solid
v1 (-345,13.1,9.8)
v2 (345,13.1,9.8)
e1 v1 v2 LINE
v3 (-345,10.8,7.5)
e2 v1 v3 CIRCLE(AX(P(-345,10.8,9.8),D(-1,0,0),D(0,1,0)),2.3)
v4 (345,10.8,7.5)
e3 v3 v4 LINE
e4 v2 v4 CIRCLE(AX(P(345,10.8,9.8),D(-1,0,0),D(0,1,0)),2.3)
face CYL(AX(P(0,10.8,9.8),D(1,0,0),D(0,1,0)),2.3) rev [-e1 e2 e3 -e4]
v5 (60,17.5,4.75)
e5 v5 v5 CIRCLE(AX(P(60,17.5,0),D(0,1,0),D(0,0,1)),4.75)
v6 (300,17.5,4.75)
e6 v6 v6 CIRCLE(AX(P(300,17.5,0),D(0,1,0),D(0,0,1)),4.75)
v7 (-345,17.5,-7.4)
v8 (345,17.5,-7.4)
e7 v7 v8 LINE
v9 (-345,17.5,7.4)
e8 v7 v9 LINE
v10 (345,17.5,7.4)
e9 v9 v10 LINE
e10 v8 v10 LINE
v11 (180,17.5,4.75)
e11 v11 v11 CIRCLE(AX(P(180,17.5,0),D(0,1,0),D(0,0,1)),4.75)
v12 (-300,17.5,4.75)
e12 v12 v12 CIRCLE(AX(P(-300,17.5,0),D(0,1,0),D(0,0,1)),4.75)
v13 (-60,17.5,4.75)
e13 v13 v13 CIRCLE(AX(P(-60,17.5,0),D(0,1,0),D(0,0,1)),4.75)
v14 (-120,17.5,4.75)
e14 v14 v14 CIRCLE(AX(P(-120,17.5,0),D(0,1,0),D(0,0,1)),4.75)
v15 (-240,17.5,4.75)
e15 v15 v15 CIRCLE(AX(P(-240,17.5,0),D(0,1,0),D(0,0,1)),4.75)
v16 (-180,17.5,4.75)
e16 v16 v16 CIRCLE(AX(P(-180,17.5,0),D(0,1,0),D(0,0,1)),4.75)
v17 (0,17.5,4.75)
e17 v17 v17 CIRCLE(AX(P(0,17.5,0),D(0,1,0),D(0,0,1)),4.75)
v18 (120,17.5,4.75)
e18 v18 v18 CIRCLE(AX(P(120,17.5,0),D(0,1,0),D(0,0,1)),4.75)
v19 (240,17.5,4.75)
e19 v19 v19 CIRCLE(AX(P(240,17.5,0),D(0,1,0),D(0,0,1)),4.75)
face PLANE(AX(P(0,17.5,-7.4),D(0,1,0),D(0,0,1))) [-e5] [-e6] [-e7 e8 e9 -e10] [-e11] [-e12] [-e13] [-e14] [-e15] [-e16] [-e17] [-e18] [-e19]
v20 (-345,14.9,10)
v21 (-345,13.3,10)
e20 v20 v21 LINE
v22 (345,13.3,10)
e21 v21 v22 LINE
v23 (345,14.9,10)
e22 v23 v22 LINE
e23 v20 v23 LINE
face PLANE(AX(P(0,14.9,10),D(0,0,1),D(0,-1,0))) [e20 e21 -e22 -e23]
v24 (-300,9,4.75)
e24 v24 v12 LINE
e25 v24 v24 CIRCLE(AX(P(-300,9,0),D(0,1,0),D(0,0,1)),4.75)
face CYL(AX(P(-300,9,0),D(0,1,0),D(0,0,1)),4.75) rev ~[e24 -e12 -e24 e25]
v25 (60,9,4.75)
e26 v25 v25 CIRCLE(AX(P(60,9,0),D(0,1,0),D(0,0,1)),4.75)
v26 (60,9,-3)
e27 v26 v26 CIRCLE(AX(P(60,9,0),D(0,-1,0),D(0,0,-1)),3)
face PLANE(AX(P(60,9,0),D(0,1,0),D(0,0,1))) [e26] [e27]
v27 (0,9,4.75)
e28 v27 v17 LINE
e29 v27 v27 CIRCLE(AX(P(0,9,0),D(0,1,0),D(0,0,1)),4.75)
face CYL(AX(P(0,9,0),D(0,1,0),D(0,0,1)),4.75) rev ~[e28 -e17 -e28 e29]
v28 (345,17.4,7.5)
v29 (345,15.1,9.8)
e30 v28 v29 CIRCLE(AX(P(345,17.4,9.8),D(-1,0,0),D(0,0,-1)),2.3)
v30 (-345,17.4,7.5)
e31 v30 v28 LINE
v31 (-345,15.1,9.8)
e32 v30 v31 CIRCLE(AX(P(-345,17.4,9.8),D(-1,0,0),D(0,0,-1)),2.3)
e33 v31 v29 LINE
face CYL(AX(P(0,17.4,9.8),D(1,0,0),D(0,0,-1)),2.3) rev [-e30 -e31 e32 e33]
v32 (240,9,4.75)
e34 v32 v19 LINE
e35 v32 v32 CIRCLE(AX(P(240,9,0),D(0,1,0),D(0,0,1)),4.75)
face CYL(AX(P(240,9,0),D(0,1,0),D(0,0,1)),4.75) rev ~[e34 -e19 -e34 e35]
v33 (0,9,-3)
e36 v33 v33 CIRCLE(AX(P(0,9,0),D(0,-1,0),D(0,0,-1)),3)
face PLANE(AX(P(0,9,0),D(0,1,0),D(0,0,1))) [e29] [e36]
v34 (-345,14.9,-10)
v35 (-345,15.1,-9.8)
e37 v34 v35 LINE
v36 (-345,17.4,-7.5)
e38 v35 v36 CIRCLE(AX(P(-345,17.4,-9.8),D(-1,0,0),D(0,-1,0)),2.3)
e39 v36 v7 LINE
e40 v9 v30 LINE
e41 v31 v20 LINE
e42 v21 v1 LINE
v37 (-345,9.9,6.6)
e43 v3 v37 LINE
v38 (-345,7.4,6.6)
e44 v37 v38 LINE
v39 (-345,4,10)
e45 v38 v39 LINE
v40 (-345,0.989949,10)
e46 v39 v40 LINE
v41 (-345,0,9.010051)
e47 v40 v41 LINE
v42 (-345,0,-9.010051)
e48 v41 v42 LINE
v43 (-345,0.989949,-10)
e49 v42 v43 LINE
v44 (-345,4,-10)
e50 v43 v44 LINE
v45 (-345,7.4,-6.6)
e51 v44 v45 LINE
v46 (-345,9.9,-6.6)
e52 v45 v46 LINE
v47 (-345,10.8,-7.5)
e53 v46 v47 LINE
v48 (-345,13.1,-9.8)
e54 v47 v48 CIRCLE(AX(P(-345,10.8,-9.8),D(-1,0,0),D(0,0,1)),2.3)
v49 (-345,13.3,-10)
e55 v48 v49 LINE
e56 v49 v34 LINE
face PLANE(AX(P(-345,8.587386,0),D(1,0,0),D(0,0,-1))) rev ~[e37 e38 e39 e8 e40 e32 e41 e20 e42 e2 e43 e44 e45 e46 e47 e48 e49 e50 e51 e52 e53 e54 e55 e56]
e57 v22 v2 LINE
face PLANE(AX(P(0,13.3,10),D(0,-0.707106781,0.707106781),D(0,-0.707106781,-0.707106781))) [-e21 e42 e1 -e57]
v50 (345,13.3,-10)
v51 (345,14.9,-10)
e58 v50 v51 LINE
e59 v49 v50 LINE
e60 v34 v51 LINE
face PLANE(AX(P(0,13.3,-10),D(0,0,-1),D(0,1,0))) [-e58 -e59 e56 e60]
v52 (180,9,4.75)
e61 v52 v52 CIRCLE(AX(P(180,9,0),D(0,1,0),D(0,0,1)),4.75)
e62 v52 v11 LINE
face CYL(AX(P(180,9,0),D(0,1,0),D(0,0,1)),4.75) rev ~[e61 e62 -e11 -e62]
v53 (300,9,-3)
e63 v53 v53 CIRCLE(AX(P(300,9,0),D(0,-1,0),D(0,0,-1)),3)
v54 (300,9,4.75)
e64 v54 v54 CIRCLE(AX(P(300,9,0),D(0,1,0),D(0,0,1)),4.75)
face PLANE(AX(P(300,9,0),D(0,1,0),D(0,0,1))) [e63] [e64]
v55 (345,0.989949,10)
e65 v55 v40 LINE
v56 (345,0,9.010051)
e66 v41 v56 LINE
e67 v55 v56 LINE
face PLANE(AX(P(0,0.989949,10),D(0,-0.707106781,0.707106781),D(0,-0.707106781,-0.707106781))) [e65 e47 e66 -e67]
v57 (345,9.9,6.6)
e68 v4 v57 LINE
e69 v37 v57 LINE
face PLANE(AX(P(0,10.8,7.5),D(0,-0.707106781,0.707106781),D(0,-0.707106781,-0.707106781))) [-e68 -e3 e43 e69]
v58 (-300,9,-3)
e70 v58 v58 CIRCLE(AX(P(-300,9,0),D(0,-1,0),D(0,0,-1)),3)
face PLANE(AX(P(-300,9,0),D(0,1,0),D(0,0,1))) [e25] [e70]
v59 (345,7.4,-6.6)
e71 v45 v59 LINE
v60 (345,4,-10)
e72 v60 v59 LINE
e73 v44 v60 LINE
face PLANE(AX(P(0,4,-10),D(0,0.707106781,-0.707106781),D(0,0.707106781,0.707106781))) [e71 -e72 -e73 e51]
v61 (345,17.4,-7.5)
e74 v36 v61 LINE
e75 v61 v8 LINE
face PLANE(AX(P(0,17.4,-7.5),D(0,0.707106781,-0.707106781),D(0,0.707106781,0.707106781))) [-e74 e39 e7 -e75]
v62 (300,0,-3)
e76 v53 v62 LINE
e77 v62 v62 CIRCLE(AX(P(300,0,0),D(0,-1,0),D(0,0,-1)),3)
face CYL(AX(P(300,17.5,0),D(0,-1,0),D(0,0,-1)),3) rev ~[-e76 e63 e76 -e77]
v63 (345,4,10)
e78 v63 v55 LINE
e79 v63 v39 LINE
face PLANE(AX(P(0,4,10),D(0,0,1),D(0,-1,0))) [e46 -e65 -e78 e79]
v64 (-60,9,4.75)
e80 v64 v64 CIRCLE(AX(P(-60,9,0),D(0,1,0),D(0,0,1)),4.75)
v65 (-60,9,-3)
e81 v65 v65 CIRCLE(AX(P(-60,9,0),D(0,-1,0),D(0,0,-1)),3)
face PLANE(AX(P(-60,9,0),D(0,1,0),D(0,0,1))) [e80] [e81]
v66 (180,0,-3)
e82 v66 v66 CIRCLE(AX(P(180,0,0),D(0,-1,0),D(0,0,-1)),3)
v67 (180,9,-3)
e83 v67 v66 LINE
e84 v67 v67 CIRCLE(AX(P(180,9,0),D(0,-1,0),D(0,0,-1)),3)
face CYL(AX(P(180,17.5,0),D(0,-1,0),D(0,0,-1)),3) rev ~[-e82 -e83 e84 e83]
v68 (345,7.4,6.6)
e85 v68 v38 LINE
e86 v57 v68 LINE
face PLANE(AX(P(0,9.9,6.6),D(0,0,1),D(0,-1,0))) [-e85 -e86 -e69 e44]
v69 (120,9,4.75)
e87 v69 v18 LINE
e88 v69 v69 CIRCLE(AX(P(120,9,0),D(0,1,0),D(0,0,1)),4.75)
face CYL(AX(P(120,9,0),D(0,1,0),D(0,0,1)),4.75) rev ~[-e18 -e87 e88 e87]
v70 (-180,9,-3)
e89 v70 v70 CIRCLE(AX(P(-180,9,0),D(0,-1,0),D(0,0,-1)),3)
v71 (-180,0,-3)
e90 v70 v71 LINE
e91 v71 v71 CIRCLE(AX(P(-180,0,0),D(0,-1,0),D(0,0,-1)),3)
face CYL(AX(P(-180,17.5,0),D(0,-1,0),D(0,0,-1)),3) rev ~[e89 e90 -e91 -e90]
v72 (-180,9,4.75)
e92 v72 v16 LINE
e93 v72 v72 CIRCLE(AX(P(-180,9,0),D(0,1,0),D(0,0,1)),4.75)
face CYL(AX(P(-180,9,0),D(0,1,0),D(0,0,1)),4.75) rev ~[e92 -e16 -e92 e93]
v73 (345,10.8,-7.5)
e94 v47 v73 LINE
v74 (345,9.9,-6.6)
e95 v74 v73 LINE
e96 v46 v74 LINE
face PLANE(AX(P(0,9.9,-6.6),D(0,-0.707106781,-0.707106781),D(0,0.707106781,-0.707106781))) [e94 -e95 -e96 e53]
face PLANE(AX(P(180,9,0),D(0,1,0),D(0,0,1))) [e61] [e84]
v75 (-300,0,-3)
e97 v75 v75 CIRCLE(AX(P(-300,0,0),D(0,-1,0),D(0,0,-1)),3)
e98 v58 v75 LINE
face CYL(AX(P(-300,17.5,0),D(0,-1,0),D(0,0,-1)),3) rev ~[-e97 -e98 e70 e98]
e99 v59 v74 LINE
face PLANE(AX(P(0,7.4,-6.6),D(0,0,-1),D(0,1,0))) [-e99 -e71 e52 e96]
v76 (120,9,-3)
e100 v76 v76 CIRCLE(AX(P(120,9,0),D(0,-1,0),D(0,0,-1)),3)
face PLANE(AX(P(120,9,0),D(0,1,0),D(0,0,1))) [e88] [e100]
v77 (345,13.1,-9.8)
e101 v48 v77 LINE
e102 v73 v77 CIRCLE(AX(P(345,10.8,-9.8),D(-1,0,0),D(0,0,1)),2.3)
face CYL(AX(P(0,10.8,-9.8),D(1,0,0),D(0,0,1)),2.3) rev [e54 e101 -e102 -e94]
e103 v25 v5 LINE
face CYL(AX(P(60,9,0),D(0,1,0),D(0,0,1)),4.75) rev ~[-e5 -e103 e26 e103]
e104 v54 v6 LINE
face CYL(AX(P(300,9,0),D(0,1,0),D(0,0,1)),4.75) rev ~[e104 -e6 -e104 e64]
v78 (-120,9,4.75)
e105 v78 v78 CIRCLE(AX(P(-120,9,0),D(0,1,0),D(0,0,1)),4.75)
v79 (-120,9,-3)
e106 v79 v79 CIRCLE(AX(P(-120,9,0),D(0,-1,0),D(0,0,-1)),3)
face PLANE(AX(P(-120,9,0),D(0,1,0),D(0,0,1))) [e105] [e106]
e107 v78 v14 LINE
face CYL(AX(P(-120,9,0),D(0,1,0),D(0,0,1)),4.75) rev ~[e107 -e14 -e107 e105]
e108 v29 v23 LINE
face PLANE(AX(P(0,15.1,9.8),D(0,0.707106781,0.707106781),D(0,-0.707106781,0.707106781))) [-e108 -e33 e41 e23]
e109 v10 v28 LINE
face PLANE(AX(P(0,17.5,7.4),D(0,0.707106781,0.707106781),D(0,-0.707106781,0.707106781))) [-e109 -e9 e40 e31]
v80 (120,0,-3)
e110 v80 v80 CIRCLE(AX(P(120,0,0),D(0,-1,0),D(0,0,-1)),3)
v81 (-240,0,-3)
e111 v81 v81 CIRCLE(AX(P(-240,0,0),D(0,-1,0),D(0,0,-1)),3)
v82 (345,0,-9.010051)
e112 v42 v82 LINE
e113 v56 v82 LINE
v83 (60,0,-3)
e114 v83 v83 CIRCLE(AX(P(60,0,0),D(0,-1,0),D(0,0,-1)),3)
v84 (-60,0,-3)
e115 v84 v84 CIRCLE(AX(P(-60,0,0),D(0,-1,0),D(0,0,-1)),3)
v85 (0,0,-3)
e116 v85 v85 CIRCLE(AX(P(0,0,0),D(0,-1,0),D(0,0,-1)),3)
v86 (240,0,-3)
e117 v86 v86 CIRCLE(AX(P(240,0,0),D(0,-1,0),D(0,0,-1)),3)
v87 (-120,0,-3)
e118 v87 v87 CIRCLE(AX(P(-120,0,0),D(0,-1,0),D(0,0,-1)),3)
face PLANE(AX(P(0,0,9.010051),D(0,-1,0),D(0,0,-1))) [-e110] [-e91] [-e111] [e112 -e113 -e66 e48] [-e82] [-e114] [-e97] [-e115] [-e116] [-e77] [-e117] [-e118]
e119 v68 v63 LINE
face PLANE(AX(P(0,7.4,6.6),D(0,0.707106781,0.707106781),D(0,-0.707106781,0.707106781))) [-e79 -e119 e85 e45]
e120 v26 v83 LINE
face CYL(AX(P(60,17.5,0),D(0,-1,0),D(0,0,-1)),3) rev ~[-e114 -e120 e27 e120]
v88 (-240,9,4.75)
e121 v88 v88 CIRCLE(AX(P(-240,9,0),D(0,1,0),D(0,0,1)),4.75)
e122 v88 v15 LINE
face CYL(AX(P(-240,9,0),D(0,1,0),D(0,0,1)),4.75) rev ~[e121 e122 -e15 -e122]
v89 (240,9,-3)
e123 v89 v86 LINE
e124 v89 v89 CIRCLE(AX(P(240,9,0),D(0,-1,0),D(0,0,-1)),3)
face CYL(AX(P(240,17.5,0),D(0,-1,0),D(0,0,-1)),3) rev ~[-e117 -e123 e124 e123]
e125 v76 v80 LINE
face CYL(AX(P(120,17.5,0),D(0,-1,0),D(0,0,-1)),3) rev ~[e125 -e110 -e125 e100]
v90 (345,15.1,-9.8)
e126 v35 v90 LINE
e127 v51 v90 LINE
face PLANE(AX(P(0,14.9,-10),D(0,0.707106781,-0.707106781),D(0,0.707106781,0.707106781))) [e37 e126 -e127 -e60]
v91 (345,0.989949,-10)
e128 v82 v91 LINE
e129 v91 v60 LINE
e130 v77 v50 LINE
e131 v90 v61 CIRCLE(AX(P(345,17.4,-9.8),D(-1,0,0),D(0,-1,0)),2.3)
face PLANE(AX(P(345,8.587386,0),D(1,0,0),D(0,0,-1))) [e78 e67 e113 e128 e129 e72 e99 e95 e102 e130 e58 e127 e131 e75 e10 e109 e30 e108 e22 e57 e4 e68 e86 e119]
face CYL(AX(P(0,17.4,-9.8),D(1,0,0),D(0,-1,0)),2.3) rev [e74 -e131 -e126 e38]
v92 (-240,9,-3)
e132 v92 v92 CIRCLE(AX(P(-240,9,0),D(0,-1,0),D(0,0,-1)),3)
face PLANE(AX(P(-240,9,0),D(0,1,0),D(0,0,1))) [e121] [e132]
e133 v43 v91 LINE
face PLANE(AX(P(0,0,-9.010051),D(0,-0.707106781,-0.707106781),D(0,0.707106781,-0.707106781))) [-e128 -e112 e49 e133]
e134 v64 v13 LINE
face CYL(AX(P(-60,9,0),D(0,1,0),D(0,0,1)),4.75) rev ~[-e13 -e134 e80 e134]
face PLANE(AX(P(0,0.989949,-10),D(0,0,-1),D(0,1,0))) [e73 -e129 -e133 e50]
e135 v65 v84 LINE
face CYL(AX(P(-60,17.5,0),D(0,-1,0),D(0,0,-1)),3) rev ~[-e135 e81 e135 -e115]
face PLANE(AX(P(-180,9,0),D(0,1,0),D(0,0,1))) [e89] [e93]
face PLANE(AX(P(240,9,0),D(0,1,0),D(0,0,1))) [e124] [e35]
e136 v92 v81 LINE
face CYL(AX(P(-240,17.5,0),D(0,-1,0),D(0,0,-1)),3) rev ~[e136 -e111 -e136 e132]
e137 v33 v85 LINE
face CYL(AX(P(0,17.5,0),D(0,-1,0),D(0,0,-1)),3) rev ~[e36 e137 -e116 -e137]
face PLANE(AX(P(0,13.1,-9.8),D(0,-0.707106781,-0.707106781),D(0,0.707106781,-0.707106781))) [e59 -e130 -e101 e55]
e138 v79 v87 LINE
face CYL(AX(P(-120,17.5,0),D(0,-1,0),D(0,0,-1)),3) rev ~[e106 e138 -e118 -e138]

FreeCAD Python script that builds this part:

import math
import FreeCAD as App
import Part
import Sketcher
Q = App.Units.Quantity

doc = App.newDocument("Part")
params = doc.addObject("Spreadsheet::Sheet", "Params")
for row, (alias, value) in enumerate([
    ("sketch1_radius", "2.3 mm"),
    ("sketch1_width", "2.5 mm"),
    ("sketch1_width2", "1.6 mm"),
    ("sketch1_height", "14.8 mm"),
    ("sketch1_length", "1.4 mm"),
    ("pad1_length", "690 mm"),
    ("sketch2_diameter", "6 mm"),
    ("hole_diameter", "6 mm"),
    ("hole_cbore_diameter", "9.5 mm"),
    ("hole_cbore_depth", "8.5 mm"),
    ("linearpattern_pitch", "60 mm"),
    ("linearpattern2_pitch", "60 mm"),
], start=1):
    params.set(f"A{row}", alias)
    params.set(f"B{row}", "=" + value)
    params.setAlias(f"B{row}", alias)

body = doc.addObject("PartDesign::Body", "Body")

# Sketch on YZ plane
sketch1 = doc.addObject("Sketcher::SketchObject", "Sketch")
body.addObject(sketch1)
sketch1.AttachmentSupport = (doc.YZ_Plane, [""])
sketch1.MapMode = "FlatFace"
sketch1.addGeometry([
    Part.LineSegment(App.Vector(0.99, 10, 0), App.Vector(0, 9.01, 0)),  # 0
    Part.LineSegment(App.Vector(0, 9.01, 0), App.Vector(0, -9.01, 0)),  # 1
    Part.LineSegment(App.Vector(0, -9.01, 0), App.Vector(0.99, -10, 0)),  # 2
    Part.LineSegment(App.Vector(0.99, -10, 0), App.Vector(4, -10, 0)),  # 3
    Part.LineSegment(App.Vector(4, -10, 0), App.Vector(7.4, -6.6, 0)),  # 4
    Part.LineSegment(App.Vector(7.4, -6.6, 0), App.Vector(9.9, -6.6, 0)),  # 5
    Part.LineSegment(App.Vector(9.9, -6.6, 0), App.Vector(10.8, -7.5, 0)),  # 6
    Part.ArcOfCircle(Part.Circle(App.Vector(10.8, -9.8, 0), App.Vector(0, 0, 1), 2.3), math.radians(0), math.radians(90)),  # 7
    Part.LineSegment(App.Vector(13.1, -9.8, 0), App.Vector(13.3, -10, 0)),  # 8
    Part.LineSegment(App.Vector(13.3, -10, 0), App.Vector(14.9, -10, 0)),  # 9
    Part.LineSegment(App.Vector(14.9, -10, 0), App.Vector(15.1, -9.8, 0)),  # 10
    Part.ArcOfCircle(Part.Circle(App.Vector(17.4, -9.8, 0), App.Vector(0, 0, 1), 2.3), math.radians(90), math.radians(180)),  # 11
    Part.LineSegment(App.Vector(17.4, -7.5, 0), App.Vector(17.5, -7.4, 0)),  # 12
    Part.LineSegment(App.Vector(17.5, -7.4, 0), App.Vector(17.5, 7.4, 0)),  # 13
    Part.LineSegment(App.Vector(17.5, 7.4, 0), App.Vector(17.4, 7.5, 0)),  # 14
    Part.ArcOfCircle(Part.Circle(App.Vector(17.4, 9.8, 0), App.Vector(0, 0, 1), 2.3), math.radians(180), math.radians(270)),  # 15
    Part.LineSegment(App.Vector(15.1, 9.8, 0), App.Vector(14.9, 10, 0)),  # 16
    Part.LineSegment(App.Vector(14.9, 10, 0), App.Vector(13.3, 10, 0)),  # 17
    Part.LineSegment(App.Vector(13.3, 10, 0), App.Vector(13.1, 9.8, 0)),  # 18
    Part.ArcOfCircle(Part.Circle(App.Vector(10.8, 9.8, 0), App.Vector(0, 0, 1), 2.3), math.radians(-90), math.radians(0)),  # 19
    Part.LineSegment(App.Vector(10.8, 7.5, 0), App.Vector(9.9, 6.6, 0)),  # 20
    Part.LineSegment(App.Vector(9.9, 6.6, 0), App.Vector(7.4, 6.6, 0)),  # 21
    Part.LineSegment(App.Vector(7.4, 6.6, 0), App.Vector(4, 10, 0)),  # 22
    Part.LineSegment(App.Vector(4, 10, 0), App.Vector(0.99, 10, 0)),  # 23
], False)
sketch1.addConstraint([
    Sketcher.Constraint("Coincident", 0, 2, 1, 1),
    Sketcher.Constraint("Coincident", 1, 2, 2, 1),
    Sketcher.Constraint("Coincident", 2, 2, 3, 1),
    Sketcher.Constraint("Coincident", 3, 2, 4, 1),
    Sketcher.Constraint("Coincident", 4, 2, 5, 1),
    Sketcher.Constraint("Coincident", 5, 2, 6, 1),
    Sketcher.Constraint("Coincident", 6, 2, 7, 2),
    Sketcher.Constraint("Coincident", 7, 1, 8, 1),
    Sketcher.Constraint("Coincident", 8, 2, 9, 1),
    Sketcher.Constraint("Coincident", 9, 2, 10, 1),
    Sketcher.Constraint("Coincident", 10, 2, 11, 2),
    Sketcher.Constraint("Coincident", 11, 1, 12, 1),
    Sketcher.Constraint("Coincident", 12, 2, 13, 1),
    Sketcher.Constraint("Coincident", 13, 2, 14, 1),
    Sketcher.Constraint("Coincident", 14, 2, 15, 2),
    Sketcher.Constraint("Coincident", 15, 1, 16, 1),
    Sketcher.Constraint("Coincident", 16, 2, 17, 1),
    Sketcher.Constraint("Coincident", 17, 2, 18, 1),
    Sketcher.Constraint("Coincident", 18, 2, 19, 2),
    Sketcher.Constraint("Coincident", 19, 1, 20, 1),
    Sketcher.Constraint("Coincident", 20, 2, 21, 1),
    Sketcher.Constraint("Coincident", 21, 2, 22, 1),
    Sketcher.Constraint("Coincident", 22, 2, 23, 1),
    Sketcher.Constraint("Coincident", 23, 2, 0, 1),
    Sketcher.Constraint("Vertical", 1),
    Sketcher.Constraint("Horizontal", 3),
    Sketcher.Constraint("Horizontal", 5),
    Sketcher.Constraint("Horizontal", 9),
    Sketcher.Constraint("Vertical", 13),
    Sketcher.Constraint("Horizontal", 17),
    Sketcher.Constraint("Horizontal", 21),
    Sketcher.Constraint("Horizontal", 23),
    Sketcher.Constraint("Equal", 7, 11),
    Sketcher.Constraint("Equal", 11, 15),
    Sketcher.Constraint("Equal", 15, 19),
    Sketcher.Constraint("Symmetric", 0, 2, 1, 2, -1, 1),
    Sketcher.Constraint("Symmetric", 11, 3, 15, 3, -1),
    Sketcher.Constraint("Symmetric", 7, 3, 19, 3, -1),
    Sketcher.Constraint("Symmetric", 9, 2, 16, 2, -1),
    Sketcher.Constraint("Symmetric", 5, 2, 20, 2, -1),
    Sketcher.Constraint("Symmetric", 3, 2, 22, 2, -1),
    Sketcher.Constraint("Perpendicular", 0, 2),
    Sketcher.Constraint("Perpendicular", 2, 4),
    Sketcher.Constraint("Perpendicular", 4, 6),
    Sketcher.Constraint("Parallel", 6, 8),
    Sketcher.Constraint("Perpendicular", 8, 10),
    Sketcher.Constraint("Parallel", 10, 12),
    Sketcher.Constraint("Perpendicular", 12, 14),
    Sketcher.Constraint("Parallel", 14, 16),
    Sketcher.Constraint("Perpendicular", 16, 18),
    Sketcher.Constraint("Parallel", 18, 20),
    Sketcher.Constraint("Perpendicular", 20, 22),
    Sketcher.Constraint("Horizontal", 7, 3, 11, 3),
    Sketcher.Constraint("Horizontal", 11, 3, 7, 1),
    Sketcher.Constraint("Horizontal", 3, 2, 8, 2),
    Sketcher.Constraint("Horizontal", 7, 1, 10, 2),
    Sketcher.Constraint("Horizontal", 19, 3, 15, 1),
    Sketcher.Constraint("Horizontal", 15, 1, 18, 2),
    Sketcher.Constraint("Vertical", 19, 3, 6, 2),
    Sketcher.Constraint("Vertical", 15, 3, 11, 1),
    Sketcher.Constraint("Vertical", 11, 1, 14, 2),
    Sketcher.Constraint("Radius", 7, Q("2.3 mm")),
    Sketcher.Constraint("DistanceX", 5, 1, 5, 2, Q("2.5 mm")),
    Sketcher.Constraint("DistanceX", 9, 1, 9, 2, Q("1.6 mm")),
    Sketcher.Constraint("DistanceY", 13, 1, 13, 2, Q("14.8 mm")),
    Sketcher.Constraint("DistanceY", 2, 2, -1, 1, Q("10 mm")),
    Sketcher.Constraint("DistanceX", -1, 1, 3, 2, Q("4 mm")),
    Sketcher.Constraint("DistanceX", 4, 2, 11, 3, Q("10 mm")),
    Sketcher.Constraint("DistanceX", 7, 1, 10, 2, Q("2 mm")),
    Sketcher.Constraint("Distance", 0, Q("1.4 mm")),
])
sketch1.setExpression("Constraints[61]", "Params.sketch1_radius")
sketch1.setExpression("Constraints[62]", "Params.sketch1_width")
sketch1.setExpression("Constraints[63]", "Params.sketch1_width2")
sketch1.setExpression("Constraints[64]", "Params.sketch1_height")
sketch1.setExpression("Constraints[69]", "Params.sketch1_length")
pad1 = doc.addObject("PartDesign::Pad", "Pad")
body.addObject(pad1)
pad1.Profile = sketch1
pad1.setExpression("Length", "Params.pad1_length")
pad1.Midplane = True

# Sketch on XZ plane
sketch2 = doc.addObject("Sketcher::SketchObject", "Sketch001")
body.addObject(sketch2)
sketch2.AttachmentSupport = (doc.XZ_Plane, [""])
sketch2.MapMode = "FlatFace"
sketch2.AttachmentOffset = App.Placement(App.Vector(0, 0, -17.5), App.Rotation())
sketch2.addGeometry(Part.Circle(App.Vector(0, 0, 0), App.Vector(0, 0, 1), 3), False)
sketch2.addConstraint([
    Sketcher.Constraint("Coincident", 0, 3, -1, 1),
    Sketcher.Constraint("Diameter", 0, Q("6 mm")),
])
sketch2.setExpression("Constraints[1]", "Params.sketch2_diameter")
doc.recompute()
hole = doc.addObject("PartDesign::Hole", "Hole")
body.addObject(hole)
hole.Profile = sketch2
hole.ThreadType = "None"
hole.setExpression("Diameter", "Params.hole_diameter")
hole.DepthType = "ThroughAll"
hole.HoleCutType = "Counterbore"
hole.setExpression("HoleCutDiameter", "Params.hole_cbore_diameter")
hole.setExpression("HoleCutDepth", "Params.hole_cbore_depth")
hole.Reversed = True
doc.recompute()

linearpattern = doc.addObject("PartDesign::LinearPattern", "LinearPattern")
body.addObject(linearpattern)
linearpattern.Originals = [hole]
linearpattern.Direction = (doc.X_Axis, [""])
linearpattern.Mode = "offset"
linearpattern.setExpression("Offset", "Params.linearpattern_pitch")
linearpattern.Occurrences = 6
body.Tip = linearpattern
doc.recompute()

linearpattern2 = doc.addObject("PartDesign::LinearPattern", "LinearPattern001")
body.addObject(linearpattern2)
linearpattern2.Originals = [hole]
linearpattern2.Direction = (doc.X_Axis, [""])
linearpattern2.Mode = "offset"
linearpattern2.setExpression("Offset", "Params.linearpattern2_pitch")
linearpattern2.Occurrences = 6
linearpattern2.Reversed = True
body.Tip = linearpattern2

doc.recompute()
